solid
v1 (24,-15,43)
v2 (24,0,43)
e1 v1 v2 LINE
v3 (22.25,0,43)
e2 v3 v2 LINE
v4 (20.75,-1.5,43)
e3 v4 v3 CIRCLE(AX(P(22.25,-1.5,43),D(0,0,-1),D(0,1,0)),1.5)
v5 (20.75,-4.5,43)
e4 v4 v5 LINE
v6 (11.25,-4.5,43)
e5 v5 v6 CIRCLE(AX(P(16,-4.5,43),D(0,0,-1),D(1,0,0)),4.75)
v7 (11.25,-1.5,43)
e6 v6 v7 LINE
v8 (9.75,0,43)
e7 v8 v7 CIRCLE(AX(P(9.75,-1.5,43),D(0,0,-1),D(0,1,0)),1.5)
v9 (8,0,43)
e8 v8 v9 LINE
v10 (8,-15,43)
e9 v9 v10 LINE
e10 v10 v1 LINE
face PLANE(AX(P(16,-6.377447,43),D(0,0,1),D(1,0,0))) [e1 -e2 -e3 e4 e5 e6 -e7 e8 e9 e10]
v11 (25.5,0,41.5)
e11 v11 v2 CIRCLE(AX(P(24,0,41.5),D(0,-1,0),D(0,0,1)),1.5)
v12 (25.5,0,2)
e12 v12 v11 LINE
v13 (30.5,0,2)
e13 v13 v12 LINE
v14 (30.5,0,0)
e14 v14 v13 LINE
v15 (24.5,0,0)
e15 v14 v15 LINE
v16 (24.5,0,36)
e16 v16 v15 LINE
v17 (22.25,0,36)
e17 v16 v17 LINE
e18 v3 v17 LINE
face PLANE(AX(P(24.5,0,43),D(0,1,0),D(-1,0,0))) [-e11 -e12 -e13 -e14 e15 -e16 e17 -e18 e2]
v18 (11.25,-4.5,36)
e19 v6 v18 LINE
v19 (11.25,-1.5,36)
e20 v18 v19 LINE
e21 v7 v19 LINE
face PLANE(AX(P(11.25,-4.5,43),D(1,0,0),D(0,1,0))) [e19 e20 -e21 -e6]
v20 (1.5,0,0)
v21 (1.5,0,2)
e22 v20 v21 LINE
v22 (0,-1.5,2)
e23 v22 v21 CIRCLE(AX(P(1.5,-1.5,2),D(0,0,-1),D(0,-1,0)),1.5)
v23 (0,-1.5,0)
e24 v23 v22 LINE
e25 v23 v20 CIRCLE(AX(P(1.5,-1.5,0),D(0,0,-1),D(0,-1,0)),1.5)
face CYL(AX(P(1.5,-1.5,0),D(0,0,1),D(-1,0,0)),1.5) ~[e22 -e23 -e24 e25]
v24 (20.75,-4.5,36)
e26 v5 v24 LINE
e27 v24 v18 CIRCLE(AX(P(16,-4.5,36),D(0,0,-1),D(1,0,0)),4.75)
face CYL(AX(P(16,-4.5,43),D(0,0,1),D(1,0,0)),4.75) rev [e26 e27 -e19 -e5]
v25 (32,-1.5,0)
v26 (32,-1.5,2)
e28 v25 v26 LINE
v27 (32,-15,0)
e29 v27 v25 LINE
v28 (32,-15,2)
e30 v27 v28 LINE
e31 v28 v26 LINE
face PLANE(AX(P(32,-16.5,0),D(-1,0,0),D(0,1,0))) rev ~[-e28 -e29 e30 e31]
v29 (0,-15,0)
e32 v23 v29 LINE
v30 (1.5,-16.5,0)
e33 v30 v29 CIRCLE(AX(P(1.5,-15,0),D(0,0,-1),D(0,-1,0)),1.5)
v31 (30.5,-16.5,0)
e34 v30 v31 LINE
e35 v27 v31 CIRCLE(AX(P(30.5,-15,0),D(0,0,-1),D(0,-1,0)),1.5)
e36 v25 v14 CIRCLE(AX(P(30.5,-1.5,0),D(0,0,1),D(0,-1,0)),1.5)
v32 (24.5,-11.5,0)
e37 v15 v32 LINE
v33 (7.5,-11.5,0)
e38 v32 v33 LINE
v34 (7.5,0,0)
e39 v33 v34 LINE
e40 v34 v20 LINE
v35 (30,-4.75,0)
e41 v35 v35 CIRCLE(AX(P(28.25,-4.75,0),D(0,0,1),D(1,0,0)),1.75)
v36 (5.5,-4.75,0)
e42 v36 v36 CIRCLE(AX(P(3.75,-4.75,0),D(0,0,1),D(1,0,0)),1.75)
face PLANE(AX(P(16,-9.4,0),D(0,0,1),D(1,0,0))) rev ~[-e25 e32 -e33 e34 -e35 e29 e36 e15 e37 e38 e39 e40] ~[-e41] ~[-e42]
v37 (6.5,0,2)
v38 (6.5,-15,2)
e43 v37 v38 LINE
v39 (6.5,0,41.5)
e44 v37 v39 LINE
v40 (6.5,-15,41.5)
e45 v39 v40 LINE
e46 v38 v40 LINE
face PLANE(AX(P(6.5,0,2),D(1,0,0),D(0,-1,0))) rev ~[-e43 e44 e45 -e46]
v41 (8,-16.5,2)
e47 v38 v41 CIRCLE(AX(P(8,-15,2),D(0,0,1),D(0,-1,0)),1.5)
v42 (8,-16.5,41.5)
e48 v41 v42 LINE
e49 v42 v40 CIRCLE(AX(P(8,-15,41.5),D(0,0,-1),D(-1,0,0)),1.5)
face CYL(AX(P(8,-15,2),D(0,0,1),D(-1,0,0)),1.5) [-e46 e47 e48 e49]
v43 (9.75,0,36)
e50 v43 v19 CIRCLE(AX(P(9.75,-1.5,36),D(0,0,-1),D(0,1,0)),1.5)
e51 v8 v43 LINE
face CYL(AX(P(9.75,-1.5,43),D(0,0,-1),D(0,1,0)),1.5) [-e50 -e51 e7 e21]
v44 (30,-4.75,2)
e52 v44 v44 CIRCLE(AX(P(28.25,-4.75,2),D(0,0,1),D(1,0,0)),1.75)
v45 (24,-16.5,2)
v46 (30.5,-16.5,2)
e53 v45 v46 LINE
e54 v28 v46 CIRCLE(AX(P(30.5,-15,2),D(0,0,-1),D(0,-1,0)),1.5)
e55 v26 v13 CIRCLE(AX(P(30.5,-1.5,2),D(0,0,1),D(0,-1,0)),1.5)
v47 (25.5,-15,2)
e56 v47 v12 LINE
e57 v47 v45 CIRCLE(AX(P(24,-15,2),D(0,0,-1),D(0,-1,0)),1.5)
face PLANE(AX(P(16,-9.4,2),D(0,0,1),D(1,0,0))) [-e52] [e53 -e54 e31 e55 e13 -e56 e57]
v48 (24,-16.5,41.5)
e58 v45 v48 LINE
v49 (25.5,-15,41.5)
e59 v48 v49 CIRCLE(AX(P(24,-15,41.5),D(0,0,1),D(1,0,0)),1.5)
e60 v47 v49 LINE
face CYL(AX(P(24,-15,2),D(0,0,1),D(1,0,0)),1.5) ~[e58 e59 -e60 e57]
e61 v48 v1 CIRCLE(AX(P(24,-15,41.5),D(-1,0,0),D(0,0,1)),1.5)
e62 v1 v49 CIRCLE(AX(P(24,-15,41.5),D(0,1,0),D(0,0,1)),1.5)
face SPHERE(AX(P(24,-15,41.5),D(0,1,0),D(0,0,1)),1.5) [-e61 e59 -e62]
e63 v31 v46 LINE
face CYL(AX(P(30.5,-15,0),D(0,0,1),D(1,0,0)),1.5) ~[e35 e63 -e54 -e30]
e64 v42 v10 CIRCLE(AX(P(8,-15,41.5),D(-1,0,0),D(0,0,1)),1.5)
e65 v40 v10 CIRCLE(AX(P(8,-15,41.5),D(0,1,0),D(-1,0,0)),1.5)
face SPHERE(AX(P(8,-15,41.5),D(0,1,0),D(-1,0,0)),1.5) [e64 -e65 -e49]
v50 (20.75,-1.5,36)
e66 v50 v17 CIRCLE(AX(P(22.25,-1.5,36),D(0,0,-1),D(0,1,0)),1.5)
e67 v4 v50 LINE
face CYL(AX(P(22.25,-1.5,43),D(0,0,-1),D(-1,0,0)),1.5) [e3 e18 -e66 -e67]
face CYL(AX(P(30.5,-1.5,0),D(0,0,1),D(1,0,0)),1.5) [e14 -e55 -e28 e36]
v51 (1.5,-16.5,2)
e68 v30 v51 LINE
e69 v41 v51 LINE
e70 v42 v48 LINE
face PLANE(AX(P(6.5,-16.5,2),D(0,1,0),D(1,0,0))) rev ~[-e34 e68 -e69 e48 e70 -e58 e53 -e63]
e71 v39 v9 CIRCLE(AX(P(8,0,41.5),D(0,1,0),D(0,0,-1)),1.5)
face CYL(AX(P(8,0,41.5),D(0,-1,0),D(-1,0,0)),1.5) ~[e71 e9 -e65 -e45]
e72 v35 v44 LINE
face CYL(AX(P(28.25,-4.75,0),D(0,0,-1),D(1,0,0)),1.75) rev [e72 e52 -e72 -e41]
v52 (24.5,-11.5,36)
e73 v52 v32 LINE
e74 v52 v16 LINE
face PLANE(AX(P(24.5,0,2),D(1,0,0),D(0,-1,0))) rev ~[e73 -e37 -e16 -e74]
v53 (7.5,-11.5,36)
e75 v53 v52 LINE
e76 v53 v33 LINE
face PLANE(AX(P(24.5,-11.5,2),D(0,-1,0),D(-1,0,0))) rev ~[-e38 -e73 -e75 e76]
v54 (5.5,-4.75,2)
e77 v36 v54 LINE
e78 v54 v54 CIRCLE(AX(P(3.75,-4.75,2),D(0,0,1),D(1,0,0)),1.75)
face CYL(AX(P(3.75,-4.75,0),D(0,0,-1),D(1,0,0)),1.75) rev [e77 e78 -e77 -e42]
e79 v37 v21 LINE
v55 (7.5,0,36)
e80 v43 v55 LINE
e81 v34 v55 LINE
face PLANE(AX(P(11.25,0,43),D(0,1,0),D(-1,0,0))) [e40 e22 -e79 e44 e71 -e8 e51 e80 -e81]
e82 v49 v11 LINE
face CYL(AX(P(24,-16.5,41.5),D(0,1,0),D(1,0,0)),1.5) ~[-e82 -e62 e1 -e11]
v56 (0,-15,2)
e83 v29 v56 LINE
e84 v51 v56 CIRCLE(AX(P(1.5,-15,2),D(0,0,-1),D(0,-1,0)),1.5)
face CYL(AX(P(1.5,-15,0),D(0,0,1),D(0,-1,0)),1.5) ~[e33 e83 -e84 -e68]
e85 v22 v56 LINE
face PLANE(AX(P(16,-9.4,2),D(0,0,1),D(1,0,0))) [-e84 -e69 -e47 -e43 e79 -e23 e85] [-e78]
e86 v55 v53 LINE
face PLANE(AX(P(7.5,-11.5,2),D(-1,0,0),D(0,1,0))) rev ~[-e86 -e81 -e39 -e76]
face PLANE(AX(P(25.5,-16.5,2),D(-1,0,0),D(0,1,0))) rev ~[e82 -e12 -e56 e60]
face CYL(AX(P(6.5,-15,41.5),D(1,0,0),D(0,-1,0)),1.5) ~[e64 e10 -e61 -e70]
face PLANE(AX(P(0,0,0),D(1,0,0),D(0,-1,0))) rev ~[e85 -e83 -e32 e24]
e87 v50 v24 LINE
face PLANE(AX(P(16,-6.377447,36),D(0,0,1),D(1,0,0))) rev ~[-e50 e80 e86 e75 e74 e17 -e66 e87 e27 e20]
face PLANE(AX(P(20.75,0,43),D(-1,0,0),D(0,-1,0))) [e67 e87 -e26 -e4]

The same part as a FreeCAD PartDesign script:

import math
import FreeCAD as App
import Part
import Sketcher
from FreeCAD import Vector
Q = App.Units.Quantity


def edges_at(feature, points):
    """Names of the edges that pass closest to the given points."""
    edges = feature.Shape.Edges
    near = lambda p: min(range(len(edges)), key=lambda i: edges[i].distToShape(Part.Vertex(*p))[0])
    return sorted({f"Edge{near(p) + 1}" for p in points})


def add_polygon(sketch, points):
    """Adds a closed chain of lines whose ends are joined by coincident constraints."""
    first, n = sketch.GeometryCount, len(points)
    for a, b in zip(points, points[1:] + points[:1]):
        sketch.addGeometry(Part.LineSegment(App.Vector(*a, 0), App.Vector(*b, 0)), False)
    for i in range(n):
        sketch.addConstraint(Sketcher.Constraint("Coincident", first + i, 2, first + (i + 1) % n, 1))

doc = App.newDocument("Part")
body = doc.addObject("PartDesign::Body", "Body")

# Sketch on XY plane
sketch1 = body.newObject("Sketcher::SketchObject", "Sketch")
sketch1.AttachmentSupport = (doc.getObject("XY_Plane"), [""])
sketch1.MapMode = "FlatFace"
add_polygon(sketch1, [(0, 0), (0, -16.5), (32, -16.5), (32, 0), (24.5, 0), (24.5, -11.5), (7.5, -11.5), (7.5, 0)])  # lines 0-7
sketch1.addGeometry(Part.Circle(Vector(3.8, -4.8, 0), Vector(0, 0, 1), 1.8), False)  # 8
sketch1.addGeometry(Part.Circle(Vector(28.2, -4.8, 0), Vector(0, 0, 1), 1.8), False)  # 9
sketch1.addConstraint(Sketcher.Constraint("Vertical", 0))
sketch1.addConstraint(Sketcher.Constraint("Horizontal", 1))
sketch1.addConstraint(Sketcher.Constraint("Vertical", 2))
sketch1.addConstraint(Sketcher.Constraint("Horizontal", 3))
sketch1.addConstraint(Sketcher.Constraint("Vertical", 4))
sketch1.addConstraint(Sketcher.Constraint("Horizontal", 5))
sketch1.addConstraint(Sketcher.Constraint("Vertical", 6))
sketch1.addConstraint(Sketcher.Constraint("Horizontal", 7))
sketch1.addConstraint(Sketcher.Constraint("Coincident", 7, 2, -1, 1))
sketch1.addConstraint(Sketcher.Constraint("Equal", 8, 9))
sketch1.addConstraint(Sketcher.Constraint("PointOnObject", 2, 2, -1))
sketch1.addConstraint(Sketcher.Constraint("Horizontal", 8, 3, 9, 3))
sketch1.addConstraint(Sketcher.Constraint("Equal", 3, 7))
sketch1.addConstraint(Sketcher.Constraint("Diameter", 8, Q("3.5 mm")))
sketch1.addConstraint(Sketcher.Constraint("DistanceX", 1, 1, 1, 2, Q("32 mm")))
sketch1.addConstraint(Sketcher.Constraint("DistanceX", 5, 2, 5, 1, Q("17 mm")))
sketch1.addConstraint(Sketcher.Constraint("DistanceY", 0, 2, 0, 1, Q("16.5 mm")))
sketch1.addConstraint(Sketcher.Constraint("DistanceY", 4, 2, 4, 1, Q("11.5 mm")))
sketch1.addConstraint(Sketcher.Constraint("DistanceX", 8, 3, 9, 3, Q("24.5 mm")))
sketch1.addConstraint(Sketcher.Constraint("DistanceX", -1, 1, 8, 3, Q("3.75 mm")))
sketch1.addConstraint(Sketcher.Constraint("DistanceY", 8, 3, -1, 1, Q("4.75 mm")))
pad1 = body.newObject("PartDesign::Pad", "Pad")
pad1.Profile = sketch1
pad1.Length = 2

# Sketch on XY plane
sketch2 = body.newObject("Sketcher::SketchObject", "Sketch001")
sketch2.AttachmentSupport = (doc.getObject("XY_Plane"), [""])
sketch2.MapMode = "FlatFace"
sketch2.AttachmentOffset = App.Placement(Vector(0, 0, 2), App.Rotation())
add_polygon(sketch2, [(7.5, -11.5), (7.5, 0), (6.5, 0), (6.5, -16.5), (25.5, -16.5), (25.5, 0), (24.5, 0), (24.5, -11.5)])  # lines 0-7
sketch2.addConstraint(Sketcher.Constraint("Vertical", 0))
sketch2.addConstraint(Sketcher.Constraint("Horizontal", 1))
sketch2.addConstraint(Sketcher.Constraint("Vertical", 2))
sketch2.addConstraint(Sketcher.Constraint("Horizontal", 3))
sketch2.addConstraint(Sketcher.Constraint("Vertical", 4))
sketch2.addConstraint(Sketcher.Constraint("Horizontal", 5))
sketch2.addConstraint(Sketcher.Constraint("Vertical", 6))
sketch2.addConstraint(Sketcher.Constraint("Horizontal", 7))
sketch2.addConstraint(Sketcher.Constraint("PointOnObject", 0, 2, -1))
sketch2.addConstraint(Sketcher.Constraint("PointOnObject", 4, 2, -1))
sketch2.addConstraint(Sketcher.Constraint("Equal", 1, 5))
sketch2.addConstraint(Sketcher.Constraint("DistanceX", 1, 2, 1, 1, Q("1 mm")))
sketch2.addConstraint(Sketcher.Constraint("DistanceX", 3, 1, 3, 2, Q("19 mm")))
sketch2.addConstraint(Sketcher.Constraint("DistanceY", 0, 1, 0, 2, Q("11.5 mm")))
sketch2.addConstraint(Sketcher.Constraint("DistanceY", 2, 2, 2, 1, Q("16.5 mm")))
sketch2.addConstraint(Sketcher.Constraint("DistanceX", -1, 1, 0, 2, Q("7.5 mm")))
pad2 = body.newObject("PartDesign::Pad", "Pad001")
pad2.Profile = sketch2
pad2.Length = 41

# Sketch on XY plane
sketch3 = body.newObject("Sketcher::SketchObject", "Sketch002")
sketch3.AttachmentSupport = (doc.getObject("XY_Plane"), [""])
sketch3.MapMode = "FlatFace"
sketch3.AttachmentOffset = App.Placement(Vector(0, 0, 43), App.Rotation())
sketch3.addGeometry(Part.LineSegment(Vector(20.8, 0, 0), Vector(20.8, -4.5, 0)), False)
sketch3.addGeometry(Part.ArcOfCircle(Part.Circle(Vector(16, -4.5, 0), Vector(0, 0, 1), 4.8), math.radians(180), math.radians(360)), False)
sketch3.addGeometry(Part.LineSegment(Vector(11.2, -4.5, 0), Vector(11.2, 0, 0)), False)
sketch3.addGeometry(Part.LineSegment(Vector(11.2, 0, 0), Vector(7.5, 0, 0)), False)
sketch3.addGeometry(Part.LineSegment(Vector(7.5, 0, 0), Vector(7.5, -11.5, 0)), False)
sketch3.addGeometry(Part.LineSegment(Vector(7.5, -11.5, 0), Vector(24.5, -11.5, 0)), False)
sketch3.addGeometry(Part.LineSegment(Vector(24.5, -11.5, 0), Vector(24.5, 0, 0)), False)
sketch3.addGeometry(Part.LineSegment(Vector(24.5, 0, 0), Vector(20.8, 0, 0)), False)
sketch3.addConstraint(Sketcher.Constraint("Tangent", 0, 2, 1, 2))
sketch3.addConstraint(Sketcher.Constraint("Tangent", 1, 1, 2, 1))
sketch3.addConstraint(Sketcher.Constraint("Coincident", 2, 2, 3, 1))
sketch3.addConstraint(Sketcher.Constraint("Coincident", 3, 2, 4, 1))
sketch3.addConstraint(Sketcher.Constraint("Coincident", 4, 2, 5, 1))
sketch3.addConstraint(Sketcher.Constraint("Coincident", 5, 2, 6, 1))
sketch3.addConstraint(Sketcher.Constraint("Coincident", 6, 2, 7, 1))
sketch3.addConstraint(Sketcher.Constraint("Coincident", 7, 2, 0, 1))
sketch3.addConstraint(Sketcher.Constraint("Vertical", 0))
sketch3.addConstraint(Sketcher.Constraint("Vertical", 2))
sketch3.addConstraint(Sketcher.Constraint("Horizontal", 3))
sketch3.addConstraint(Sketcher.Constraint("Vertical", 4))
sketch3.addConstraint(Sketcher.Constraint("Horizontal", 5))
sketch3.addConstraint(Sketcher.Constraint("Vertical", 6))
sketch3.addConstraint(Sketcher.Constraint("Horizontal", 7))
sketch3.addConstraint(Sketcher.Constraint("PointOnObject", 2, 2, -1))
sketch3.addConstraint(Sketcher.Constraint("PointOnObject", 6, 2, -1))
sketch3.addConstraint(Sketcher.Constraint("Equal", 3, 7))
sketch3.addConstraint(Sketcher.Constraint("DistanceX", 5, 1, 5, 2, Q("17 mm")))
sketch3.addConstraint(Sketcher.Constraint("Radius", 1, Q("4.75 mm")))
sketch3.addConstraint(Sketcher.Constraint("DistanceY", 0, 2, 0, 1, Q("4.5 mm")))
sketch3.addConstraint(Sketcher.Constraint("DistanceY", 4, 2, 4, 1, Q("11.5 mm")))
sketch3.addConstraint(Sketcher.Constraint("DistanceX", -1, 1, 1, 3, Q("16 mm")))
pad3 = body.newObject("PartDesign::Pad", "Pad002")
pad3.Profile = sketch3
pad3.Length = 7
pad3.Reversed = True
doc.recompute()

fillet = body.newObject("PartDesign::Fillet", "Fillet")
fillet.Base = (pad3, edges_at(pad3, [
    (25.5, -8.25, 43),
    (11.25, 0, 39.5),
    (20.75, 0, 39.5),
    (6.5, -8.25, 43),
    (6.5, -16.5, 22.5),
    (16, -16.5, 43),
    (25.5, -16.5, 22.5),
    (32, -16.5, 1),
    (32, 0, 1),
    (0, -16.5, 1),
    (0, 0, 1),
]))
fillet.Radius = 1.5

doc.recompute()
